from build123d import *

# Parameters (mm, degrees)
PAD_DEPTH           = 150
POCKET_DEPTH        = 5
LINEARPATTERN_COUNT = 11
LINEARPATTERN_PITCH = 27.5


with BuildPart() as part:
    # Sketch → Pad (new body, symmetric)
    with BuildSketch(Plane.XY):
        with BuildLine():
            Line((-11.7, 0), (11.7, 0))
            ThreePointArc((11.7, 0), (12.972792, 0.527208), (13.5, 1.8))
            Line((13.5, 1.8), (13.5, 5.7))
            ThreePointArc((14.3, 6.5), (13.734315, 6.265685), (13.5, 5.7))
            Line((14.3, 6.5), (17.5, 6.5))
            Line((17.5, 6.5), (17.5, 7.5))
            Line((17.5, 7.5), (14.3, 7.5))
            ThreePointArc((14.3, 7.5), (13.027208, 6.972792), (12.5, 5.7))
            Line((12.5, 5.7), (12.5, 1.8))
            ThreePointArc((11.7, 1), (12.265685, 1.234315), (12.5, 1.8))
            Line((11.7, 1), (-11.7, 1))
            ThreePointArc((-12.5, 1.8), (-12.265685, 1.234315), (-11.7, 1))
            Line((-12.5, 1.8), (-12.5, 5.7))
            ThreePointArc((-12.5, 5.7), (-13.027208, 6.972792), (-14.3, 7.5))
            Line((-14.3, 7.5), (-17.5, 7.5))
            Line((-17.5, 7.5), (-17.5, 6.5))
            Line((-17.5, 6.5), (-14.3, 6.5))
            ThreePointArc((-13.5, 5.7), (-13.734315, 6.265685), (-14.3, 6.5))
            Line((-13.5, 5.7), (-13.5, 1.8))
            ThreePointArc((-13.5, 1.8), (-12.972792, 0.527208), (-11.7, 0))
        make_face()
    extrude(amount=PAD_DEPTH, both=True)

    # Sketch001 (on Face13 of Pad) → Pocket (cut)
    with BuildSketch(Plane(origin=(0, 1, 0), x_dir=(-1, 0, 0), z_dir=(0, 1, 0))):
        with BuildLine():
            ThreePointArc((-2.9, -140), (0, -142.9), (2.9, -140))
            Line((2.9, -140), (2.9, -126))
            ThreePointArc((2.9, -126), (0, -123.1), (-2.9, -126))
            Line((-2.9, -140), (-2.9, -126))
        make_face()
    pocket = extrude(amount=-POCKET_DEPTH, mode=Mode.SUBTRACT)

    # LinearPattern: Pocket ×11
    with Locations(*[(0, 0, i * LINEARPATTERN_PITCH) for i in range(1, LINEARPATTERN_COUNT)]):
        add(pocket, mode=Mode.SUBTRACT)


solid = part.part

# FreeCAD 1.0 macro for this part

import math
import FreeCAD as App
import Part
import Sketcher
from FreeCAD import Vector

doc = App.newDocument("Part")
body = doc.addObject("PartDesign::Body", "Body")

# Sketch on XY plane
sketch1 = doc.addObject("Sketcher::SketchObject", "Sketch")
body.addObject(sketch1)
sketch1.AttachmentSupport = (doc.XY_Plane, [""])
sketch1.MapMode = "FlatFace"
sketch1.addGeometry([
    Part.LineSegment(Vector(-11.7, 0, 0), Vector(11.7, 0, 0)),  # 0
    Part.ArcOfCircle(Part.Circle(Vector(11.7, 1.8, 0), Vector(0, 0, 1), 1.8), math.radians(-90), math.radians(0)),  # 1
    Part.LineSegment(Vector(13.5, 1.8, 0), Vector(13.5, 5.7, 0)),  # 2
    Part.ArcOfCircle(Part.Circle(Vector(14.3, 5.7, 0), Vector(0, 0, 1), 0.8), math.radians(90), math.radians(180)),  # 3
    Part.LineSegment(Vector(14.3, 6.5, 0), Vector(17.5, 6.5, 0)),  # 4
    Part.LineSegment(Vector(17.5, 6.5, 0), Vector(17.5, 7.5, 0)),  # 5
    Part.LineSegment(Vector(17.5, 7.5, 0), Vector(14.3, 7.5, 0)),  # 6
    Part.ArcOfCircle(Part.Circle(Vector(14.3, 5.7, 0), Vector(0, 0, 1), 1.8), math.radians(90), math.radians(180)),  # 7
    Part.LineSegment(Vector(12.5, 5.7, 0), Vector(12.5, 1.8, 0)),  # 8
    Part.ArcOfCircle(Part.Circle(Vector(11.7, 1.8, 0), Vector(0, 0, 1), 0.8), math.radians(-90), math.radians(0)),  # 9
    Part.LineSegment(Vector(11.7, 1, 0), Vector(-11.7, 1, 0)),  # 10
    Part.ArcOfCircle(Part.Circle(Vector(-11.7, 1.8, 0), Vector(0, 0, 1), 0.8), math.radians(-180), math.radians(-90)),  # 11
    Part.LineSegment(Vector(-12.5, 1.8, 0), Vector(-12.5, 5.7, 0)),  # 12
    Part.ArcOfCircle(Part.Circle(Vector(-14.3, 5.7, 0), Vector(0, 0, 1), 1.8), math.radians(0), math.radians(90)),  # 13
    Part.LineSegment(Vector(-14.3, 7.5, 0), Vector(-17.5, 7.5, 0)),  # 14
    Part.LineSegment(Vector(-17.5, 7.5, 0), Vector(-17.5, 6.5, 0)),  # 15
    Part.LineSegment(Vector(-17.5, 6.5, 0), Vector(-14.3, 6.5, 0)),  # 16
    Part.ArcOfCircle(Part.Circle(Vector(-14.3, 5.7, 0), Vector(0, 0, 1), 0.8), math.radians(0), math.radians(90)),  # 17
    Part.LineSegment(Vector(-13.5, 5.7, 0), Vector(-13.5, 1.8, 0)),  # 18
    Part.ArcOfCircle(Part.Circle(Vector(-11.7, 1.8, 0), Vector(0, 0, 1), 1.8), math.radians(-180), math.radians(-90)),  # 19
], False)
sketch1.addConstraint([
    Sketcher.Constraint("Tangent", 0, 2, 1, 1),
    Sketcher.Constraint("Tangent", 1, 2, 2, 1),
    Sketcher.Constraint("Tangent", 2, 2, 3, 2),
    Sketcher.Constraint("Tangent", 3, 1, 4, 1),
    Sketcher.Constraint("Coincident", 4, 2, 5, 1),
    Sketcher.Constraint("Coincident", 5, 2, 6, 1),
    Sketcher.Constraint("Tangent", 6, 2, 7, 1),
    Sketcher.Constraint("Tangent", 7, 2, 8, 1),
    Sketcher.Constraint("Tangent", 8, 2, 9, 2),
    Sketcher.Constraint("Tangent", 9, 1, 10, 1),
    Sketcher.Constraint("Tangent", 10, 2, 11, 2),
    Sketcher.Constraint("Tangent", 11, 1, 12, 1),
    Sketcher.Constraint("Tangent", 12, 2, 13, 1),
    Sketcher.Constraint("Tangent", 13, 2, 14, 1),
    Sketcher.Constraint("Coincident", 14, 2, 15, 1),
    Sketcher.Constraint("Coincident", 15, 2, 16, 1),
    Sketcher.Constraint("Tangent", 16, 2, 17, 2),
    Sketcher.Constraint("Tangent", 17, 1, 18, 1),
    Sketcher.Constraint("Tangent", 18, 2, 19, 1),
    Sketcher.Constraint("Tangent", 19, 2, 0, 1),
    Sketcher.Constraint("Horizontal", 0),
    Sketcher.Constraint("Vertical", 2),
    Sketcher.Constraint("Horizontal", 4),
    Sketcher.Constraint("Vertical", 5),
    Sketcher.Constraint("Horizontal", 6),
    Sketcher.Constraint("Vertical", 8),
    Sketcher.Constraint("Horizontal", 10),
    Sketcher.Constraint("Vertical", 12),
    Sketcher.Constraint("Horizontal", 14),
    Sketcher.Constraint("Vertical", 15),
    Sketcher.Constraint("Horizontal", 16),
    Sketcher.Constraint("Vertical", 18),
    Sketcher.Constraint("Coincident", 7, 3, 3, 3),
    Sketcher.Constraint("Coincident", 9, 3, 1, 3),
    Sketcher.Constraint("Coincident", 17, 3, 13, 3),
    Sketcher.Constraint("Coincident", 19, 3, 11, 3),
    Sketcher.Constraint("Equal", 1, 7),
    Sketcher.Constraint("Equal", 9, 11),
    Sketcher.Constraint("Equal", 7, 13),
    Sketcher.Constraint("Symmetric", 0, 2, 19, 2, -1, 1),
    Sketcher.Constraint("Symmetric", 5, 2, 14, 2, -2),
    Sketcher.Constraint("Radius", 1, 1.800001),
    Sketcher.Constraint("Radius", 3, 0.800001),
    Sketcher.Constraint("DistanceX", 0, 1, 0, 2, 23.4),
    Sketcher.Constraint("DistanceX", 4, 1, 4, 2, 3.2),
    Sketcher.Constraint("DistanceY", 2, 1, 2, 2, 3.9),
])
pad1 = doc.addObject("PartDesign::Pad", "Pad")
body.addObject(pad1)
pad1.Profile = sketch1
pad1.Length = 300
pad1.Midplane = True

# Sketch on XZ plane
sketch2 = doc.addObject("Sketcher::SketchObject", "Sketch001")
body.addObject(sketch2)
sketch2.AttachmentSupport = (doc.XZ_Plane, [""])
sketch2.MapMode = "FlatFace"
sketch2.AttachmentOffset = App.Placement(Vector(0, 0, -1), App.Rotation())
sketch2.addGeometry([
    Part.ArcOfCircle(Part.Circle(Vector(0, -140, 0), Vector(0, 0, 1), 2.9), math.radians(180), math.radians(360)),
    Part.LineSegment(Vector(-2.9, -140, 0), Vector(-2.9, -126, 0)),
    Part.ArcOfCircle(Part.Circle(Vector(0, -126, 0), Vector(0, 0, 1), 2.9), math.radians(0), math.radians(180)),
    Part.LineSegment(Vector(2.9, -126, 0), Vector(2.9, -140, 0)),
], False)
sketch2.addConstraint([
    Sketcher.Constraint("Tangent", 0, 1, 1, 1),
    Sketcher.Constraint("Tangent", 1, 2, 2, 2),
    Sketcher.Constraint("Tangent", 2, 1, 3, 1),
    Sketcher.Constraint("Tangent", 3, 2, 0, 2),
    Sketcher.Constraint("Vertical", 1),
    Sketcher.Constraint("Vertical", 3),
    Sketcher.Constraint("PointOnObject", 0, 3, -2),
    Sketcher.Constraint("Radius", 0, 2.9),
    Sketcher.Constraint("DistanceY", 1, 1, 1, 2, 14.0),
    Sketcher.Constraint("DistanceY", 0, 3, -1, 1, 140.0),
])
pocket1 = doc.addObject("PartDesign::Pocket", "Pocket")
body.addObject(pocket1)
pocket1.Profile = sketch2
pocket1.Length = 5
pocket1.Reversed = True
doc.recompute()

linearpattern = doc.addObject("PartDesign::LinearPattern", "LinearPattern")
body.addObject(linearpattern)
linearpattern.Originals = [pocket1]
linearpattern.Direction = (doc.Z_Axis, [""])
linearpattern.Mode = "offset"
linearpattern.Offset = 27.5
linearpattern.Occurrences = 11
body.Tip = linearpattern

doc.recompute()
